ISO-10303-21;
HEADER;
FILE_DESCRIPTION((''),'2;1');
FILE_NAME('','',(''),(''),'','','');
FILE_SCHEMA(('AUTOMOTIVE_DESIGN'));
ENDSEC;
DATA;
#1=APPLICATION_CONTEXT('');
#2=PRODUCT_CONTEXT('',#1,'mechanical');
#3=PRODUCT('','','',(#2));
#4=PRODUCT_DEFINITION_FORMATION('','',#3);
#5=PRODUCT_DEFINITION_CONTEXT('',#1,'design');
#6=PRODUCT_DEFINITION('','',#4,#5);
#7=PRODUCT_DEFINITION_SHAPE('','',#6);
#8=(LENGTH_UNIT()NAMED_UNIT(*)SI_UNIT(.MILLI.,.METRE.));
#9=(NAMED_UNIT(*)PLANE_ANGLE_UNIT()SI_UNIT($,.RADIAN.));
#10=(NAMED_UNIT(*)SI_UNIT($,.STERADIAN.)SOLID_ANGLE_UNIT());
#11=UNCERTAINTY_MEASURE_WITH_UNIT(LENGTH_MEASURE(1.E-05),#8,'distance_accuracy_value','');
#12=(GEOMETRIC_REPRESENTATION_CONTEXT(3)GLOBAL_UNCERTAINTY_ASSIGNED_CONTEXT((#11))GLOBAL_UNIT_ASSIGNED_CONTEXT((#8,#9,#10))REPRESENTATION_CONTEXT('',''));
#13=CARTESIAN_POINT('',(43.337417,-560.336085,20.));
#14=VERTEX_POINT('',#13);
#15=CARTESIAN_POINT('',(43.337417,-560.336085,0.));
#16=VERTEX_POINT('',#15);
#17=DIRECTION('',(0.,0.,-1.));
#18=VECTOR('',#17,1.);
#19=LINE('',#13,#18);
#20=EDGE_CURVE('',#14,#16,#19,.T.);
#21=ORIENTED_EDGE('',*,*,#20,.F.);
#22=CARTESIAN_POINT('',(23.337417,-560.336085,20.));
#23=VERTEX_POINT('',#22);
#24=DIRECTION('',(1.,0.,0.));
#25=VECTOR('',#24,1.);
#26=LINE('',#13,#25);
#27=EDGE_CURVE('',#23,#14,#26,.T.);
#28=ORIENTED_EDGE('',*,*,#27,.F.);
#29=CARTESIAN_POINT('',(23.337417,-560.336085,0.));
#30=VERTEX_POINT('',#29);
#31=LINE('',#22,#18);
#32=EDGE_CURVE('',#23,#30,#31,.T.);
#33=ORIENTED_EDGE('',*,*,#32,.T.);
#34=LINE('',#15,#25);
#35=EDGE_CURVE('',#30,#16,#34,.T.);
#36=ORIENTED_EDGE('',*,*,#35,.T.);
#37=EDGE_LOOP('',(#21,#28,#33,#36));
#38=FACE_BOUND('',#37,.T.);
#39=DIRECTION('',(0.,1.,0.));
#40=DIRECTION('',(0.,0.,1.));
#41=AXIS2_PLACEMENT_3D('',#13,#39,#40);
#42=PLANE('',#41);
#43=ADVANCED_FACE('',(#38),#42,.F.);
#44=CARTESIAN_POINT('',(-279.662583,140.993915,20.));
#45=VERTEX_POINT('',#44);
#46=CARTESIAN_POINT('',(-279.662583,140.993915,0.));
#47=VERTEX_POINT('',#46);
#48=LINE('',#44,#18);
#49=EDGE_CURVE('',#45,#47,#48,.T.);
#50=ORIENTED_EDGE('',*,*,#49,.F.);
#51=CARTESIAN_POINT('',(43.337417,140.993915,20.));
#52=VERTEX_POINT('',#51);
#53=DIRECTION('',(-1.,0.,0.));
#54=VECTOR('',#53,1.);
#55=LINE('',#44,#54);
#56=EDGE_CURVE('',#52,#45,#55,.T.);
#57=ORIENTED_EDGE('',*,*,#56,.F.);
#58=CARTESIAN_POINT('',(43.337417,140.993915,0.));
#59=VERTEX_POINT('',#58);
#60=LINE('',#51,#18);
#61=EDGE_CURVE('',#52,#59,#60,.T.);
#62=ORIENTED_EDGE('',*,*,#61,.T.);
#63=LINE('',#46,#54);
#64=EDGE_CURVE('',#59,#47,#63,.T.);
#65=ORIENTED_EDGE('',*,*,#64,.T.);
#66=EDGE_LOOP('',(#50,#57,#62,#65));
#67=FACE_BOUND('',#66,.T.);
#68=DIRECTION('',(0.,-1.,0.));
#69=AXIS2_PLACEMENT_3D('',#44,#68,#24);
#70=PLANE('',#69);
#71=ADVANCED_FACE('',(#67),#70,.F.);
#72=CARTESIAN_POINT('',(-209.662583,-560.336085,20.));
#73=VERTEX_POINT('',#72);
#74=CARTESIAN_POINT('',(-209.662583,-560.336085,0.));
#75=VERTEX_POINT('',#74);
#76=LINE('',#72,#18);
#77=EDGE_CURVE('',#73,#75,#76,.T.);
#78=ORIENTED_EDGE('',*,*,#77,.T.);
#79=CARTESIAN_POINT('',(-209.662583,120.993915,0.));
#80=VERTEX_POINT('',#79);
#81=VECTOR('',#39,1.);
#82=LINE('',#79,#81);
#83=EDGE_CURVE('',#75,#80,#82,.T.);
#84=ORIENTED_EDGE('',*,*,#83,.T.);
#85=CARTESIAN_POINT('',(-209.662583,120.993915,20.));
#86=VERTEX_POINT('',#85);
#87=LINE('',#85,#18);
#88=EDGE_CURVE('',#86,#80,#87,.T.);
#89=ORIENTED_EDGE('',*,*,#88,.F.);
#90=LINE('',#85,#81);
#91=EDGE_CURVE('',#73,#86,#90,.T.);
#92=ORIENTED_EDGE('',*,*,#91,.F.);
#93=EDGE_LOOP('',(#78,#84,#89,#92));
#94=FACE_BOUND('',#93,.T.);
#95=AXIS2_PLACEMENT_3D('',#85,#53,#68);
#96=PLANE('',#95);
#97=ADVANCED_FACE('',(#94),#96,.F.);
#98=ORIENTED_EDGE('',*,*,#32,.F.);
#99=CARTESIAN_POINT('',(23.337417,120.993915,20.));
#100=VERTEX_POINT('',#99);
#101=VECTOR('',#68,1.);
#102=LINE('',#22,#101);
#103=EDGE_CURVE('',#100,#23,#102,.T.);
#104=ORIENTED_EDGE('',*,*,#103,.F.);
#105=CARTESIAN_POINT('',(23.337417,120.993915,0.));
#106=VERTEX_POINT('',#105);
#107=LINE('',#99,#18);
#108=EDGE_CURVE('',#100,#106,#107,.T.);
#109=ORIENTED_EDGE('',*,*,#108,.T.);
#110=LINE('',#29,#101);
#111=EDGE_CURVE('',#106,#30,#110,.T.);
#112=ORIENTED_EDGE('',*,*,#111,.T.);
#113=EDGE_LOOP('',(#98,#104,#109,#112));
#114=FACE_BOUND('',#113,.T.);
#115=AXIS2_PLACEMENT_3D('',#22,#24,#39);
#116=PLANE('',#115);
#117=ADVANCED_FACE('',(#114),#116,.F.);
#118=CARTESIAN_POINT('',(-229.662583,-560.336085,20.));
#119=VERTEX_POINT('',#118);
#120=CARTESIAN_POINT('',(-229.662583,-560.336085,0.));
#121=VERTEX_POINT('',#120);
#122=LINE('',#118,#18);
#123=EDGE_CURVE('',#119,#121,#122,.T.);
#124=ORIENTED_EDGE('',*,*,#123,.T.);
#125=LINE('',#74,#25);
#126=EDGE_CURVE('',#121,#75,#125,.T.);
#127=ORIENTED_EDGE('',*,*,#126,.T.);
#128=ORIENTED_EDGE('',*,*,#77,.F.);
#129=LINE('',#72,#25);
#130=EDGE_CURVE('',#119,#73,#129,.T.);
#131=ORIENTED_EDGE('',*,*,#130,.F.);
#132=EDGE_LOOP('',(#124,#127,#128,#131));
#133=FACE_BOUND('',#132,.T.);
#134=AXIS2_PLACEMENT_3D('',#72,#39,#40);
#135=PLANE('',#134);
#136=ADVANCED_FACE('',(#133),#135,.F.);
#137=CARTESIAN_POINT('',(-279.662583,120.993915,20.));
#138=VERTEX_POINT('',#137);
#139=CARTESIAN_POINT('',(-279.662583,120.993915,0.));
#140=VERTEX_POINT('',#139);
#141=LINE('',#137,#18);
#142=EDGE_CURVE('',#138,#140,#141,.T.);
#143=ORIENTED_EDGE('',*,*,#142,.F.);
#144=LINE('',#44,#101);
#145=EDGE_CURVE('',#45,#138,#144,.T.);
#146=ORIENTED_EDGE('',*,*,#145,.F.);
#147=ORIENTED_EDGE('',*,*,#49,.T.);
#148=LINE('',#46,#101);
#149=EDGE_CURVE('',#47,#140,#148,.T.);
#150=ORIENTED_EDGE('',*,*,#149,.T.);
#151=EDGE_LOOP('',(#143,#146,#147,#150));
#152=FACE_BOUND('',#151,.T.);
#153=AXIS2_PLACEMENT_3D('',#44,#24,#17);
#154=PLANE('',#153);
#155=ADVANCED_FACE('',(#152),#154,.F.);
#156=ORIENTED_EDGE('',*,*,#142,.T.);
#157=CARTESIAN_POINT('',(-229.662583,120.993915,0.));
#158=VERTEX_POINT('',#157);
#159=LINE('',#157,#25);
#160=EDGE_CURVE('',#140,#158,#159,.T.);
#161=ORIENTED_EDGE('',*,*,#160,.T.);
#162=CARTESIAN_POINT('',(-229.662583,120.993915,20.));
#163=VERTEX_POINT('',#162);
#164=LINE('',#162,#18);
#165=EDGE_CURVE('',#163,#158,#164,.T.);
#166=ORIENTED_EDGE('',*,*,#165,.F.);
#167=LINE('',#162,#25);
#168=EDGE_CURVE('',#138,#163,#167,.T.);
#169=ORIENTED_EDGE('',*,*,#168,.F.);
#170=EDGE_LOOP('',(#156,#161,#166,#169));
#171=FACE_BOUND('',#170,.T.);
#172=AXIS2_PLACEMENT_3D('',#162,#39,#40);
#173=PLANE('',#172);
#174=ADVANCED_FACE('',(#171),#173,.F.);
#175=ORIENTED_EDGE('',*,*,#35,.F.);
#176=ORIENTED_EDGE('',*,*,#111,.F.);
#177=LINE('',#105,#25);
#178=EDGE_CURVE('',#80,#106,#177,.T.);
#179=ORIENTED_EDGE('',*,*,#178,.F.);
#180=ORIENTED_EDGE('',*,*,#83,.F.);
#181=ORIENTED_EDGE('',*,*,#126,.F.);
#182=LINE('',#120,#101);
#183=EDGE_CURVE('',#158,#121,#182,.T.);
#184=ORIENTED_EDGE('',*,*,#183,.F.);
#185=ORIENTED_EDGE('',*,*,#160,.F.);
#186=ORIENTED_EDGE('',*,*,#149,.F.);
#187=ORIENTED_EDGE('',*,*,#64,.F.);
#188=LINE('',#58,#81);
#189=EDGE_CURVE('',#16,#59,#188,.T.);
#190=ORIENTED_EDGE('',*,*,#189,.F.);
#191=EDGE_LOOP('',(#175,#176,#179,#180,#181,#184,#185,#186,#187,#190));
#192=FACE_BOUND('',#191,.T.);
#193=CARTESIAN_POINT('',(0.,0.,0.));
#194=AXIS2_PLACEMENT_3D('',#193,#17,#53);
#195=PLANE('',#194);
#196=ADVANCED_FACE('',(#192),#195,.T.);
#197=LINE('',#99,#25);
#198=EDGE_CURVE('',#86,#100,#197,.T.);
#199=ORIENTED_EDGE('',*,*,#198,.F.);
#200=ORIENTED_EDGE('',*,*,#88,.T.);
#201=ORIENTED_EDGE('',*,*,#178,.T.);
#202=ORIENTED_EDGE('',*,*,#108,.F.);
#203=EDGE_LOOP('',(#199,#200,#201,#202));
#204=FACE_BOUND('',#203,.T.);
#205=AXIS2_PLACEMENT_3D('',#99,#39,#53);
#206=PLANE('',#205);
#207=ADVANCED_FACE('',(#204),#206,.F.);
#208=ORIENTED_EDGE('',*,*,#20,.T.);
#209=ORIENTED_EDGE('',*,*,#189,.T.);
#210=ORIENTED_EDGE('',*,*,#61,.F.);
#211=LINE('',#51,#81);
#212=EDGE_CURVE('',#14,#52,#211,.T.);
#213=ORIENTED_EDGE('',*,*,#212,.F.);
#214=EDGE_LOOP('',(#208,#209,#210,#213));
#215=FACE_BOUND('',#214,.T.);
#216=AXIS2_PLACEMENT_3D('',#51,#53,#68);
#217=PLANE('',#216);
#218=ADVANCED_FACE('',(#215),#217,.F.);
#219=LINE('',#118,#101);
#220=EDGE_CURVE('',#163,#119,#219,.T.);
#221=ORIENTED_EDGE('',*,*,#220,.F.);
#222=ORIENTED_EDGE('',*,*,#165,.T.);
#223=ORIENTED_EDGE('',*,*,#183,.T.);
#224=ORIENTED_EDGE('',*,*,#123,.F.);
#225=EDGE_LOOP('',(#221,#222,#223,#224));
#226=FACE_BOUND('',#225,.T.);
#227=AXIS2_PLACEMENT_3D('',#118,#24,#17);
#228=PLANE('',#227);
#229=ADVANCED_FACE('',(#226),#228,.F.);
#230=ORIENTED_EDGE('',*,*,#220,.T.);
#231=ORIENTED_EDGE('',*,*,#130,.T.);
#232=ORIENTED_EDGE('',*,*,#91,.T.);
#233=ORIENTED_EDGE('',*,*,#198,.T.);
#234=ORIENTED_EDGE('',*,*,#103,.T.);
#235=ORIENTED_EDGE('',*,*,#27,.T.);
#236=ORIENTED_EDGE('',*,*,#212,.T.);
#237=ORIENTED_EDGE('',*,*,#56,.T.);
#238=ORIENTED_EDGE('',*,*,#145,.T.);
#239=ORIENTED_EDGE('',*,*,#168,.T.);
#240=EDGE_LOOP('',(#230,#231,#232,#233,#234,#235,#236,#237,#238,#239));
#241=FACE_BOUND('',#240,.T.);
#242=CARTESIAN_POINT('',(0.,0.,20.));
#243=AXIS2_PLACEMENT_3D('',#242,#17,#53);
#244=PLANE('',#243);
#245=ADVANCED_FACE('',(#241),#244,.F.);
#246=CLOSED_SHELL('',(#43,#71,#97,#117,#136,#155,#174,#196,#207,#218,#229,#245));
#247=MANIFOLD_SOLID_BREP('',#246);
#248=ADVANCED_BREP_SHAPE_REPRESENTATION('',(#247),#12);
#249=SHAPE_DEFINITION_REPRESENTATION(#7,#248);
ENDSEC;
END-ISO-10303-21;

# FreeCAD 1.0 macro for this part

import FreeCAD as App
import Part
import Sketcher
from FreeCAD import Vector

doc = App.newDocument("Part")
body = doc.addObject("PartDesign::Body", "Body")

sketch1 = doc.addObject("Sketcher::SketchObject", "Sketch")
body.addObject(sketch1)
sketch1.AttachmentSupport = (doc.XY_Plane, [""])
sketch1.MapMode = "FlatFace"
sketch1.addGeometry([
    Part.LineSegment(Vector(43, 141, 0), Vector(-280, 141, 0)),
    Part.LineSegment(Vector(-280, 141, 0), Vector(-280, 121, 0)),
    Part.LineSegment(Vector(-280, 121, 0), Vector(-230, 121, 0)),
    Part.LineSegment(Vector(-230, 121, 0), Vector(-230, -560, 0)),
    Part.LineSegment(Vector(-230, -560, 0), Vector(-210, -560, 0)),
    Part.LineSegment(Vector(-210, -560, 0), Vector(-210, 121, 0)),
    Part.LineSegment(Vector(-210, 121, 0), Vector(23, 121, 0)),
    Part.LineSegment(Vector(23, 121, 0), Vector(23, -560, 0)),
    Part.LineSegment(Vector(23, -560, 0), Vector(43, -560, 0)),
    Part.LineSegment(Vector(43, -560, 0), Vector(43, 141, 0)),
], False)
sketch1.addConstraint([
    Sketcher.Constraint("Coincident", 0, 2, 1, 1),
    Sketcher.Constraint("Coincident", 1, 2, 2, 1),
    Sketcher.Constraint("Coincident", 2, 2, 3, 1),
    Sketcher.Constraint("Coincident", 3, 2, 4, 1),
    Sketcher.Constraint("Coincident", 4, 2, 5, 1),
    Sketcher.Constraint("Coincident", 5, 2, 6, 1),
    Sketcher.Constraint("Coincident", 6, 2, 7, 1),
    Sketcher.Constraint("Coincident", 7, 2, 8, 1),
    Sketcher.Constraint("Coincident", 8, 2, 9, 1),
    Sketcher.Constraint("Coincident", 9, 2, 0, 1),
    Sketcher.Constraint("Horizontal", 0),
    Sketcher.Constraint("Vertical", 1),
    Sketcher.Constraint("Horizontal", 2),
    Sketcher.Constraint("Vertical", 3),
    Sketcher.Constraint("Horizontal", 4),
    Sketcher.Constraint("Vertical", 5),
    Sketcher.Constraint("Horizontal", 6),
    Sketcher.Constraint("Vertical", 7),
    Sketcher.Constraint("Horizontal", 8),
    Sketcher.Constraint("Vertical", 9),
    Sketcher.Constraint("Horizontal", 2, 2, 5, 2),
    Sketcher.Constraint("Horizontal", 4, 2, 7, 2),
    Sketcher.Constraint("Equal", 4, 8),
    Sketcher.Constraint("Equal", 8, 1),
    Sketcher.Constraint("DistanceX", 0, 2, 0, 1, 323.0),
    Sketcher.Constraint("DistanceX", 2, 1, 2, 2, 50.0),
    Sketcher.Constraint("DistanceX", 4, 1, 4, 2, 20.0),
    Sketcher.Constraint("DistanceY", 3, 2, 3, 1, 681.33),
    Sketcher.Constraint("DistanceX", 0, 2, -1, 1, 279.662583),
    Sketcher.Constraint("DistanceY", -1, 1, 0, 2, 140.993915),
])
pad1 = doc.addObject("PartDesign::Pad", "Pad")
body.addObject(pad1)
pad1.Profile = sketch1
pad1.Length = 20

doc.recompute()
